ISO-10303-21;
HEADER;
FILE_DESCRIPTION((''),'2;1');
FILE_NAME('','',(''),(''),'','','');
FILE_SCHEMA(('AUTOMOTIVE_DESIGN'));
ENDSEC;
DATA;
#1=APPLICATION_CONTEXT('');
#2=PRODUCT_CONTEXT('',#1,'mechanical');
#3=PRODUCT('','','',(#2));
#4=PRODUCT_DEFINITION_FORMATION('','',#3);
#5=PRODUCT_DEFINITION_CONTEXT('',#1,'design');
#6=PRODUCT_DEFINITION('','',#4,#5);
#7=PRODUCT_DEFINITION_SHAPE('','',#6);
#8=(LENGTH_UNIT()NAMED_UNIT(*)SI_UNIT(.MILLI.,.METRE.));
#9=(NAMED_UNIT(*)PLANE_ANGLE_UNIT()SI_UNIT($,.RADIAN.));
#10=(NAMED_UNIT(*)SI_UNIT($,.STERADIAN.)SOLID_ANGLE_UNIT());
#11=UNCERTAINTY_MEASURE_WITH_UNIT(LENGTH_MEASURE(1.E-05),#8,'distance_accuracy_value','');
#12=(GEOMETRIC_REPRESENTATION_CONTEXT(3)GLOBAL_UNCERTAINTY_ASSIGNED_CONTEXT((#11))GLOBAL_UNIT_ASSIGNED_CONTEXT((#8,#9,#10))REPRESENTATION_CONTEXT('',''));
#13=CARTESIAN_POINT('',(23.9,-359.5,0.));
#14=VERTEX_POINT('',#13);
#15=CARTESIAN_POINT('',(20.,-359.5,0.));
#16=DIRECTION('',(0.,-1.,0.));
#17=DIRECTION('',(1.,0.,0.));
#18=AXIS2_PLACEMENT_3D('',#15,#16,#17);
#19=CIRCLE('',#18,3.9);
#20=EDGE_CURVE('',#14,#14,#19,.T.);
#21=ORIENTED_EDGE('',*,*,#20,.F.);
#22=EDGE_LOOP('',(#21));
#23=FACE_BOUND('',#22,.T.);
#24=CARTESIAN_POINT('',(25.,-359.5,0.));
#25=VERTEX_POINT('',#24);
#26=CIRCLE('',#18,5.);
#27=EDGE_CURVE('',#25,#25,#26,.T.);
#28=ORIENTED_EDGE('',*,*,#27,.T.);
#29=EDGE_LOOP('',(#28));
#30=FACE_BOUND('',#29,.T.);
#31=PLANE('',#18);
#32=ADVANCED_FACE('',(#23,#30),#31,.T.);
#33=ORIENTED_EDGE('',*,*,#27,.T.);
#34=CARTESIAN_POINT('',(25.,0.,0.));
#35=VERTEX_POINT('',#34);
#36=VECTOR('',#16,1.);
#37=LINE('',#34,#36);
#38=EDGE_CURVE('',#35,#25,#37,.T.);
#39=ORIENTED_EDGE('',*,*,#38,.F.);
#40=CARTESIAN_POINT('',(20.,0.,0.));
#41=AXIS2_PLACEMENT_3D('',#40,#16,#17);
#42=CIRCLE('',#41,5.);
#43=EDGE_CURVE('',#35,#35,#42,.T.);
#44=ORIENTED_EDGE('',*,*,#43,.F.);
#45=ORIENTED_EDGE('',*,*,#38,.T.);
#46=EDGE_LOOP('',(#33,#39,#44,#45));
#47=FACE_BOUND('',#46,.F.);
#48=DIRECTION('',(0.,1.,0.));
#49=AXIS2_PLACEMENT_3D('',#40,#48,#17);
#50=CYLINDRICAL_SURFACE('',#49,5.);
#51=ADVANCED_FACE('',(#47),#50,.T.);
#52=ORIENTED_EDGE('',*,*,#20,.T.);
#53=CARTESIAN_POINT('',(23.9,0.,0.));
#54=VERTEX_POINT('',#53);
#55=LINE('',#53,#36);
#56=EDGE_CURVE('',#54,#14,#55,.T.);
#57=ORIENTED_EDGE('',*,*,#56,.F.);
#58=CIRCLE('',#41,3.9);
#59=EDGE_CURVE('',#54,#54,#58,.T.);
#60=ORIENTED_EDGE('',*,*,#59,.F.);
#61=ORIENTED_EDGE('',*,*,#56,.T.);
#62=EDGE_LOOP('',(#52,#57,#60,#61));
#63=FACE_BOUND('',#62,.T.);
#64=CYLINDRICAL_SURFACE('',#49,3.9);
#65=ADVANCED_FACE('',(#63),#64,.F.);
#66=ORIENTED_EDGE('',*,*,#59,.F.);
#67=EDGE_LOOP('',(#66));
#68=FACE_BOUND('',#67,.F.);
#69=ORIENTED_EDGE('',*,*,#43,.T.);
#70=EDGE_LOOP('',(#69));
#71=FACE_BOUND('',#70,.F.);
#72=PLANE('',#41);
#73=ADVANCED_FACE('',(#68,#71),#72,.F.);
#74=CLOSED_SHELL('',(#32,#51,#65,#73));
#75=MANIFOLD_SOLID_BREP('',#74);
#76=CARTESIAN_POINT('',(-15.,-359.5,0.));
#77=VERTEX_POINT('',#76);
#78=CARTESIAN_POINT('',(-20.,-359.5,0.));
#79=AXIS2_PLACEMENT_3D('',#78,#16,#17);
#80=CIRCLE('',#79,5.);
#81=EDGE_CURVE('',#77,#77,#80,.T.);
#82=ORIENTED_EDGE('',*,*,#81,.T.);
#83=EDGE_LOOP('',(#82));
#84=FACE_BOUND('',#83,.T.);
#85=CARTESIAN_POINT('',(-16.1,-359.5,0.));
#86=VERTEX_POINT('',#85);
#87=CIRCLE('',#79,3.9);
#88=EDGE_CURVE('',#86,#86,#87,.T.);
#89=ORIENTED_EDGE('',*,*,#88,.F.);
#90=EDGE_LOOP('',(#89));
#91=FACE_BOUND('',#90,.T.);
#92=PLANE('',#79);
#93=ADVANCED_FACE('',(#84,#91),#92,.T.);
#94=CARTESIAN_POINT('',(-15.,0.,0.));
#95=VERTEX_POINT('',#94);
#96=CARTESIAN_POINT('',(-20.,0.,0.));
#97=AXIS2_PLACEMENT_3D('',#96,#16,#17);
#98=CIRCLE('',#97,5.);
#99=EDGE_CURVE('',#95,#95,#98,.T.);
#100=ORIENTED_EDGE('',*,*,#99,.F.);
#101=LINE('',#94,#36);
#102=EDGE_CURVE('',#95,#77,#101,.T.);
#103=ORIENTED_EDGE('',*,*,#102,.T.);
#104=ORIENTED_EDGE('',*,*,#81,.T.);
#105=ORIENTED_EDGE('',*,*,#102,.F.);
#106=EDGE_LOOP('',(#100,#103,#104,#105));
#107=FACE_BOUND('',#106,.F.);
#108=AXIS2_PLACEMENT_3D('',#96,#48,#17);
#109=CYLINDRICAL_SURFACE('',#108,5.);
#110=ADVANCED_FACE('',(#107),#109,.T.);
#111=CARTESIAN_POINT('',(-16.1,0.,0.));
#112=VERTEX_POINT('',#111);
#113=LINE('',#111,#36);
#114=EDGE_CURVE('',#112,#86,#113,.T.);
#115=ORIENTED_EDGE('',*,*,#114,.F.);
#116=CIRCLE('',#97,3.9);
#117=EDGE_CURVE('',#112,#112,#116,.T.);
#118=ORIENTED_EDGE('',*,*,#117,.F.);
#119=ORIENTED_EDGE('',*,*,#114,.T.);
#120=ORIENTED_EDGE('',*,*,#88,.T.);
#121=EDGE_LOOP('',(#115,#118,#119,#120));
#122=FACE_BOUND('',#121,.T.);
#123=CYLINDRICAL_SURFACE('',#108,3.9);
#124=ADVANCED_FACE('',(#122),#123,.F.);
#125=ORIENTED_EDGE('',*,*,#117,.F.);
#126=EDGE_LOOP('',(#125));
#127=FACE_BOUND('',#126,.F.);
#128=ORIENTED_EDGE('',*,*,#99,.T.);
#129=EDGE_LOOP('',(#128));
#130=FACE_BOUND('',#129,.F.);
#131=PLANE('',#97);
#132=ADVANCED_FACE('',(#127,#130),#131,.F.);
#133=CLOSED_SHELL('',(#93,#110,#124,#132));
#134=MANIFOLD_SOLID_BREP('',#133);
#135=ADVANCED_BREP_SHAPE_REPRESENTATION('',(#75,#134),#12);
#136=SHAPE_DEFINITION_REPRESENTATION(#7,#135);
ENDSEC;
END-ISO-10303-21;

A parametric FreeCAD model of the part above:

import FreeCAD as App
import Part
import Sketcher
from FreeCAD import Vector

doc = App.newDocument("Part")
body = doc.addObject("PartDesign::Body", "Body")
body.AllowCompound = True

sketch1 = body.newObject("Sketcher::SketchObject", "Sketch")
sketch1.AttachmentSupport = (doc.getObject("XZ_Plane"), [""])
sketch1.MapMode = "FlatFace"
sketch1.addGeometry(Part.Circle(Vector(-20, 0, 0), Vector(0, 0, 1), 5), False)
sketch1.addGeometry(Part.Circle(Vector(-20, 0, 0), Vector(0, 0, 1), 3.9), False)
sketch1.addGeometry(Part.Circle(Vector(20, 0, 0), Vector(0, 0, 1), 5), False)
sketch1.addGeometry(Part.Circle(Vector(20, 0, 0), Vector(0, 0, 1), 3.9), False)
sketch1.addConstraint(Sketcher.Constraint("Coincident", 1, 3, 0, 3))
sketch1.addConstraint(Sketcher.Constraint("Coincident", 3, 3, 2, 3))
sketch1.addConstraint(Sketcher.Constraint("Equal", 0, 2))
sketch1.addConstraint(Sketcher.Constraint("Equal", 1, 3))
sketch1.addConstraint(Sketcher.Constraint("Symmetric", 0, 3, 2, 3, -1, 1))
sketch1.addConstraint(Sketcher.Constraint("PointOnObject", 0, 3, -1))
sketch1.addConstraint(Sketcher.Constraint("Diameter", 0, 10.0))
sketch1.addConstraint(Sketcher.Constraint("Diameter", 1, 7.8))
sketch1.addConstraint(Sketcher.Constraint("DistanceX", 0, 3, -1, 1, 20.0))
pad1 = body.newObject("PartDesign::Pad", "Pad")
pad1.Profile = sketch1
pad1.Length = 359.5

doc.recompute()
